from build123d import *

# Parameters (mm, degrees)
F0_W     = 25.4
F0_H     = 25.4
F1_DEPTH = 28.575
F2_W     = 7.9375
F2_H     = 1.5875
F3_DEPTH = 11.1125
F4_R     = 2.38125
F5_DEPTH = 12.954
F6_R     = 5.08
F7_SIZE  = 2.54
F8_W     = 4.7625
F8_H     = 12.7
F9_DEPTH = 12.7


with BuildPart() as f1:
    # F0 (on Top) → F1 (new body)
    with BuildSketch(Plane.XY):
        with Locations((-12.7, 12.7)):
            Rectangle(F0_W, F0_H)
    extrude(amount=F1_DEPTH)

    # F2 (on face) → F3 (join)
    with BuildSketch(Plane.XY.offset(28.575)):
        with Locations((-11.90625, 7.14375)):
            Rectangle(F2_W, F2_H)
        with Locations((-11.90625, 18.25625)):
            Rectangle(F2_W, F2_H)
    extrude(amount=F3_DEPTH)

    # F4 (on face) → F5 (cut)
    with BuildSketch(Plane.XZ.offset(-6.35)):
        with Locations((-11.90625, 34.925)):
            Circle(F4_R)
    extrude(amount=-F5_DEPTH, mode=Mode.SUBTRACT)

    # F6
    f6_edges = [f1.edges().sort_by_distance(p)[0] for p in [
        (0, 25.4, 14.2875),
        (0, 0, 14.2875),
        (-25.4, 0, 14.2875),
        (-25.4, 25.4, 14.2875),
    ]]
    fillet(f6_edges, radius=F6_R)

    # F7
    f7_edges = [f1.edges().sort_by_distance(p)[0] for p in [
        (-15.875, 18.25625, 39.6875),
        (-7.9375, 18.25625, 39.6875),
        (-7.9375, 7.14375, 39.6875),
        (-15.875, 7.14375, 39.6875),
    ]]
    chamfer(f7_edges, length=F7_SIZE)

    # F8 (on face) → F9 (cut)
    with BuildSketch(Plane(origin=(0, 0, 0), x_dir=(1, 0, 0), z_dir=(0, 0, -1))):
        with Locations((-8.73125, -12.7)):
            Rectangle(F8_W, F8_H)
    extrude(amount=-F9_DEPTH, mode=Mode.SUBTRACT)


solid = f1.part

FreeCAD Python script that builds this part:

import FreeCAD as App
import Part
import Sketcher

V = App.Vector
Q = App.Units.Quantity


def edges_at(feature, points):
    """Names of the edges that pass closest to the given points."""
    edges = feature.Shape.Edges
    near = lambda p: min(range(len(edges)), key=lambda i: edges[i].distToShape(Part.Vertex(*p))[0])
    return sorted({f"Edge{near(p) + 1}" for p in points})

doc = App.newDocument("Part")
body = doc.addObject("PartDesign::Body", "Body")

sketch1 = body.newObject("Sketcher::SketchObject", "Sketch")
sketch1.AttachmentSupport = (doc.getObject("XY_Plane"), [""])
sketch1.MapMode = "FlatFace"
sketch1.addGeometry(Part.LineSegment(V(-25, 25, 0), V(-25, 0, 0)), False)
sketch1.addGeometry(Part.LineSegment(V(-25, 0, 0), V(0, 0, 0)), False)
sketch1.addGeometry(Part.LineSegment(V(0, 0, 0), V(0, 25, 0)), False)
sketch1.addGeometry(Part.LineSegment(V(0, 25, 0), V(-25, 25, 0)), False)
sketch1.addConstraint(Sketcher.Constraint("Coincident", 0, 2, 1, 1))
sketch1.addConstraint(Sketcher.Constraint("Coincident", 1, 2, 2, 1))
sketch1.addConstraint(Sketcher.Constraint("Coincident", 2, 2, 3, 1))
sketch1.addConstraint(Sketcher.Constraint("Coincident", 3, 2, 0, 1))
sketch1.addConstraint(Sketcher.Constraint("Vertical", 0))
sketch1.addConstraint(Sketcher.Constraint("Horizontal", 1))
sketch1.addConstraint(Sketcher.Constraint("Vertical", 2))
sketch1.addConstraint(Sketcher.Constraint("Horizontal", 3))
sketch1.addConstraint(Sketcher.Constraint("Coincident", 1, 2, -1, 1))
sketch1.addConstraint(Sketcher.Constraint("Equal", 3, 0))
sketch1.addConstraint(Sketcher.Constraint("DistanceX", 1, 1, 1, 2, Q("1 in")))
pad1 = body.newObject("PartDesign::Pad", "Pad")
pad1.Profile = sketch1
pad1.Length = Q("1.125 in")

sketch2 = body.newObject("Sketcher::SketchObject", "Sketch001")
sketch2.AttachmentSupport = (doc.getObject("XY_Plane"), [""])
sketch2.MapMode = "FlatFace"
sketch2.AttachmentOffset = App.Placement(V(0, 0, 1.125 * 25.4), App.Rotation())
sketch2.addGeometry(Part.LineSegment(V(-15.9, 7.9, 0), V(-15.9, 6.3, 0)), False)
sketch2.addGeometry(Part.LineSegment(V(-15.9, 6.3, 0), V(-7.9, 6.3, 0)), False)
sketch2.addGeometry(Part.LineSegment(V(-7.9, 6.3, 0), V(-7.9, 7.9, 0)), False)
sketch2.addGeometry(Part.LineSegment(V(-7.9, 7.9, 0), V(-15.9, 7.9, 0)), False)
sketch2.addGeometry(Part.LineSegment(V(-15.9, 19.1, 0), V(-15.9, 17.5, 0)), False)
sketch2.addGeometry(Part.LineSegment(V(-15.9, 17.5, 0), V(-7.9, 17.5, 0)), False)
sketch2.addGeometry(Part.LineSegment(V(-7.9, 17.5, 0), V(-7.9, 19.1, 0)), False)
sketch2.addGeometry(Part.LineSegment(V(-7.9, 19.1, 0), V(-15.9, 19.1, 0)), False)
sketch2.addConstraint(Sketcher.Constraint("Coincident", 0, 2, 1, 1))
sketch2.addConstraint(Sketcher.Constraint("Coincident", 1, 2, 2, 1))
sketch2.addConstraint(Sketcher.Constraint("Coincident", 2, 2, 3, 1))
sketch2.addConstraint(Sketcher.Constraint("Coincident", 3, 2, 0, 1))
sketch2.addConstraint(Sketcher.Constraint("Coincident", 4, 2, 5, 1))
sketch2.addConstraint(Sketcher.Constraint("Coincident", 5, 2, 6, 1))
sketch2.addConstraint(Sketcher.Constraint("Coincident", 6, 2, 7, 1))
sketch2.addConstraint(Sketcher.Constraint("Coincident", 7, 2, 4, 1))
sketch2.addConstraint(Sketcher.Constraint("Vertical", 0))
sketch2.addConstraint(Sketcher.Constraint("Horizontal", 1))
sketch2.addConstraint(Sketcher.Constraint("Vertical", 2))
sketch2.addConstraint(Sketcher.Constraint("Horizontal", 3))
sketch2.addConstraint(Sketcher.Constraint("Vertical", 4))
sketch2.addConstraint(Sketcher.Constraint("Horizontal", 5))
sketch2.addConstraint(Sketcher.Constraint("Vertical", 6))
sketch2.addConstraint(Sketcher.Constraint("Horizontal", 7))
sketch2.addConstraint(Sketcher.Constraint("Vertical", 3, 2, 4, 2))
sketch2.addConstraint(Sketcher.Constraint("Vertical", 2, 2, 5, 2))
sketch2.addConstraint(Sketcher.Constraint("Equal", 2, 4))
sketch2.addConstraint(Sketcher.Constraint("DistanceY", 1, 2, 6, 2, Q("0.5 in")))
sketch2.addConstraint(Sketcher.Constraint("DistanceX", 1, 1, 1, 2, Q("0.3125 in")))
sketch2.addConstraint(Sketcher.Constraint("DistanceY", 0, 2, 0, 1, Q("0.0625 in")))
sketch2.addConstraint(Sketcher.Constraint("DistanceY", -1, 1, 0, 2, Q("0.25 in")))
sketch2.addConstraint(Sketcher.Constraint("DistanceX", 0, 2, -1, 1, Q("0.625 in")))
pad2 = body.newObject("PartDesign::Pad", "Pad001")
pad2.Profile = sketch2
pad2.Length = Q("0.4375 in")

sketch3 = body.newObject("Sketcher::SketchObject", "Sketch002")
sketch3.AttachmentSupport = (doc.getObject("XZ_Plane"), [""])
sketch3.MapMode = "FlatFace"
sketch3.AttachmentOffset = App.Placement(V(0, 0, -0.25 * 25.4), App.Rotation())
sketch3.addGeometry(Part.Circle(V(-11.9, 34.9, 0), V(0, 0, 1), 2.4), False)
sketch3.addConstraint(Sketcher.Constraint("Diameter", 0, Q("0.1875 in")))
sketch3.addConstraint(Sketcher.Constraint("DistanceX", 0, 3, -1, 1, Q("0.46875 in")))
sketch3.addConstraint(Sketcher.Constraint("DistanceY", -1, 1, 0, 3, Q("1.375 in")))
pocket1 = body.newObject("PartDesign::Pocket", "Pocket")
pocket1.Profile = sketch3
pocket1.Length = Q("0.51 in")
doc.recompute()

fillet = body.newObject("PartDesign::Fillet", "Fillet")
fillet.Base = (pocket1, edges_at(pocket1, [
    (0, 25.4, 14.287),
    (0, 0, 14.287),
    (-25.4, 0, 14.287),
    (-25.4, 25.4, 14.287),
]))
fillet.Radius = Q("0.2 in")
doc.recompute()

chamfer = body.newObject("PartDesign::Chamfer", "Chamfer")
chamfer.Base = (fillet, edges_at(fillet, [
    (-15.875, 18.256, 39.688),
    (-7.938, 18.256, 39.688),
    (-7.938, 7.144, 39.688),
    (-15.875, 7.144, 39.688),
]))
chamfer.Size = Q("0.1 in")

sketch4 = body.newObject("Sketcher::SketchObject", "Sketch003")
sketch4.AttachmentSupport = (doc.getObject("XY_Plane"), [""])
sketch4.MapMode = "FlatFace"
sketch4.addGeometry(Part.LineSegment(V(-11.1, 6.3, 0), V(-11.1, 19.1, 0)), False)
sketch4.addGeometry(Part.LineSegment(V(-11.1, 19.1, 0), V(-6.3, 19.1, 0)), False)
sketch4.addGeometry(Part.LineSegment(V(-6.3, 19.1, 0), V(-6.3, 6.3, 0)), False)
sketch4.addGeometry(Part.LineSegment(V(-6.3, 6.3, 0), V(-11.1, 6.3, 0)), False)
sketch4.addConstraint(Sketcher.Constraint("Coincident", 0, 2, 1, 1))
sketch4.addConstraint(Sketcher.Constraint("Coincident", 1, 2, 2, 1))
sketch4.addConstraint(Sketcher.Constraint("Coincident", 2, 2, 3, 1))
sketch4.addConstraint(Sketcher.Constraint("Coincident", 3, 2, 0, 1))
sketch4.addConstraint(Sketcher.Constraint("Vertical", 0))
sketch4.addConstraint(Sketcher.Constraint("Horizontal", 1))
sketch4.addConstraint(Sketcher.Constraint("Vertical", 2))
sketch4.addConstraint(Sketcher.Constraint("Horizontal", 3))
sketch4.addConstraint(Sketcher.Constraint("DistanceY", 0, 1, 0, 2, Q("0.5 in")))
sketch4.addConstraint(Sketcher.Constraint("DistanceX", 1, 1, 1, 2, Q("0.1875 in")))
sketch4.addConstraint(Sketcher.Constraint("DistanceY", -1, 1, 0, 2, Q("0.75 in")))
sketch4.addConstraint(Sketcher.Constraint("DistanceX", 1, 2, -1, 1, Q("0.25 in")))
pocket2 = body.newObject("PartDesign::Pocket", "Pocket001")
pocket2.Profile = sketch4
pocket2.Length = Q("0.5 in")
pocket2.Reversed = True

doc.recompute()
